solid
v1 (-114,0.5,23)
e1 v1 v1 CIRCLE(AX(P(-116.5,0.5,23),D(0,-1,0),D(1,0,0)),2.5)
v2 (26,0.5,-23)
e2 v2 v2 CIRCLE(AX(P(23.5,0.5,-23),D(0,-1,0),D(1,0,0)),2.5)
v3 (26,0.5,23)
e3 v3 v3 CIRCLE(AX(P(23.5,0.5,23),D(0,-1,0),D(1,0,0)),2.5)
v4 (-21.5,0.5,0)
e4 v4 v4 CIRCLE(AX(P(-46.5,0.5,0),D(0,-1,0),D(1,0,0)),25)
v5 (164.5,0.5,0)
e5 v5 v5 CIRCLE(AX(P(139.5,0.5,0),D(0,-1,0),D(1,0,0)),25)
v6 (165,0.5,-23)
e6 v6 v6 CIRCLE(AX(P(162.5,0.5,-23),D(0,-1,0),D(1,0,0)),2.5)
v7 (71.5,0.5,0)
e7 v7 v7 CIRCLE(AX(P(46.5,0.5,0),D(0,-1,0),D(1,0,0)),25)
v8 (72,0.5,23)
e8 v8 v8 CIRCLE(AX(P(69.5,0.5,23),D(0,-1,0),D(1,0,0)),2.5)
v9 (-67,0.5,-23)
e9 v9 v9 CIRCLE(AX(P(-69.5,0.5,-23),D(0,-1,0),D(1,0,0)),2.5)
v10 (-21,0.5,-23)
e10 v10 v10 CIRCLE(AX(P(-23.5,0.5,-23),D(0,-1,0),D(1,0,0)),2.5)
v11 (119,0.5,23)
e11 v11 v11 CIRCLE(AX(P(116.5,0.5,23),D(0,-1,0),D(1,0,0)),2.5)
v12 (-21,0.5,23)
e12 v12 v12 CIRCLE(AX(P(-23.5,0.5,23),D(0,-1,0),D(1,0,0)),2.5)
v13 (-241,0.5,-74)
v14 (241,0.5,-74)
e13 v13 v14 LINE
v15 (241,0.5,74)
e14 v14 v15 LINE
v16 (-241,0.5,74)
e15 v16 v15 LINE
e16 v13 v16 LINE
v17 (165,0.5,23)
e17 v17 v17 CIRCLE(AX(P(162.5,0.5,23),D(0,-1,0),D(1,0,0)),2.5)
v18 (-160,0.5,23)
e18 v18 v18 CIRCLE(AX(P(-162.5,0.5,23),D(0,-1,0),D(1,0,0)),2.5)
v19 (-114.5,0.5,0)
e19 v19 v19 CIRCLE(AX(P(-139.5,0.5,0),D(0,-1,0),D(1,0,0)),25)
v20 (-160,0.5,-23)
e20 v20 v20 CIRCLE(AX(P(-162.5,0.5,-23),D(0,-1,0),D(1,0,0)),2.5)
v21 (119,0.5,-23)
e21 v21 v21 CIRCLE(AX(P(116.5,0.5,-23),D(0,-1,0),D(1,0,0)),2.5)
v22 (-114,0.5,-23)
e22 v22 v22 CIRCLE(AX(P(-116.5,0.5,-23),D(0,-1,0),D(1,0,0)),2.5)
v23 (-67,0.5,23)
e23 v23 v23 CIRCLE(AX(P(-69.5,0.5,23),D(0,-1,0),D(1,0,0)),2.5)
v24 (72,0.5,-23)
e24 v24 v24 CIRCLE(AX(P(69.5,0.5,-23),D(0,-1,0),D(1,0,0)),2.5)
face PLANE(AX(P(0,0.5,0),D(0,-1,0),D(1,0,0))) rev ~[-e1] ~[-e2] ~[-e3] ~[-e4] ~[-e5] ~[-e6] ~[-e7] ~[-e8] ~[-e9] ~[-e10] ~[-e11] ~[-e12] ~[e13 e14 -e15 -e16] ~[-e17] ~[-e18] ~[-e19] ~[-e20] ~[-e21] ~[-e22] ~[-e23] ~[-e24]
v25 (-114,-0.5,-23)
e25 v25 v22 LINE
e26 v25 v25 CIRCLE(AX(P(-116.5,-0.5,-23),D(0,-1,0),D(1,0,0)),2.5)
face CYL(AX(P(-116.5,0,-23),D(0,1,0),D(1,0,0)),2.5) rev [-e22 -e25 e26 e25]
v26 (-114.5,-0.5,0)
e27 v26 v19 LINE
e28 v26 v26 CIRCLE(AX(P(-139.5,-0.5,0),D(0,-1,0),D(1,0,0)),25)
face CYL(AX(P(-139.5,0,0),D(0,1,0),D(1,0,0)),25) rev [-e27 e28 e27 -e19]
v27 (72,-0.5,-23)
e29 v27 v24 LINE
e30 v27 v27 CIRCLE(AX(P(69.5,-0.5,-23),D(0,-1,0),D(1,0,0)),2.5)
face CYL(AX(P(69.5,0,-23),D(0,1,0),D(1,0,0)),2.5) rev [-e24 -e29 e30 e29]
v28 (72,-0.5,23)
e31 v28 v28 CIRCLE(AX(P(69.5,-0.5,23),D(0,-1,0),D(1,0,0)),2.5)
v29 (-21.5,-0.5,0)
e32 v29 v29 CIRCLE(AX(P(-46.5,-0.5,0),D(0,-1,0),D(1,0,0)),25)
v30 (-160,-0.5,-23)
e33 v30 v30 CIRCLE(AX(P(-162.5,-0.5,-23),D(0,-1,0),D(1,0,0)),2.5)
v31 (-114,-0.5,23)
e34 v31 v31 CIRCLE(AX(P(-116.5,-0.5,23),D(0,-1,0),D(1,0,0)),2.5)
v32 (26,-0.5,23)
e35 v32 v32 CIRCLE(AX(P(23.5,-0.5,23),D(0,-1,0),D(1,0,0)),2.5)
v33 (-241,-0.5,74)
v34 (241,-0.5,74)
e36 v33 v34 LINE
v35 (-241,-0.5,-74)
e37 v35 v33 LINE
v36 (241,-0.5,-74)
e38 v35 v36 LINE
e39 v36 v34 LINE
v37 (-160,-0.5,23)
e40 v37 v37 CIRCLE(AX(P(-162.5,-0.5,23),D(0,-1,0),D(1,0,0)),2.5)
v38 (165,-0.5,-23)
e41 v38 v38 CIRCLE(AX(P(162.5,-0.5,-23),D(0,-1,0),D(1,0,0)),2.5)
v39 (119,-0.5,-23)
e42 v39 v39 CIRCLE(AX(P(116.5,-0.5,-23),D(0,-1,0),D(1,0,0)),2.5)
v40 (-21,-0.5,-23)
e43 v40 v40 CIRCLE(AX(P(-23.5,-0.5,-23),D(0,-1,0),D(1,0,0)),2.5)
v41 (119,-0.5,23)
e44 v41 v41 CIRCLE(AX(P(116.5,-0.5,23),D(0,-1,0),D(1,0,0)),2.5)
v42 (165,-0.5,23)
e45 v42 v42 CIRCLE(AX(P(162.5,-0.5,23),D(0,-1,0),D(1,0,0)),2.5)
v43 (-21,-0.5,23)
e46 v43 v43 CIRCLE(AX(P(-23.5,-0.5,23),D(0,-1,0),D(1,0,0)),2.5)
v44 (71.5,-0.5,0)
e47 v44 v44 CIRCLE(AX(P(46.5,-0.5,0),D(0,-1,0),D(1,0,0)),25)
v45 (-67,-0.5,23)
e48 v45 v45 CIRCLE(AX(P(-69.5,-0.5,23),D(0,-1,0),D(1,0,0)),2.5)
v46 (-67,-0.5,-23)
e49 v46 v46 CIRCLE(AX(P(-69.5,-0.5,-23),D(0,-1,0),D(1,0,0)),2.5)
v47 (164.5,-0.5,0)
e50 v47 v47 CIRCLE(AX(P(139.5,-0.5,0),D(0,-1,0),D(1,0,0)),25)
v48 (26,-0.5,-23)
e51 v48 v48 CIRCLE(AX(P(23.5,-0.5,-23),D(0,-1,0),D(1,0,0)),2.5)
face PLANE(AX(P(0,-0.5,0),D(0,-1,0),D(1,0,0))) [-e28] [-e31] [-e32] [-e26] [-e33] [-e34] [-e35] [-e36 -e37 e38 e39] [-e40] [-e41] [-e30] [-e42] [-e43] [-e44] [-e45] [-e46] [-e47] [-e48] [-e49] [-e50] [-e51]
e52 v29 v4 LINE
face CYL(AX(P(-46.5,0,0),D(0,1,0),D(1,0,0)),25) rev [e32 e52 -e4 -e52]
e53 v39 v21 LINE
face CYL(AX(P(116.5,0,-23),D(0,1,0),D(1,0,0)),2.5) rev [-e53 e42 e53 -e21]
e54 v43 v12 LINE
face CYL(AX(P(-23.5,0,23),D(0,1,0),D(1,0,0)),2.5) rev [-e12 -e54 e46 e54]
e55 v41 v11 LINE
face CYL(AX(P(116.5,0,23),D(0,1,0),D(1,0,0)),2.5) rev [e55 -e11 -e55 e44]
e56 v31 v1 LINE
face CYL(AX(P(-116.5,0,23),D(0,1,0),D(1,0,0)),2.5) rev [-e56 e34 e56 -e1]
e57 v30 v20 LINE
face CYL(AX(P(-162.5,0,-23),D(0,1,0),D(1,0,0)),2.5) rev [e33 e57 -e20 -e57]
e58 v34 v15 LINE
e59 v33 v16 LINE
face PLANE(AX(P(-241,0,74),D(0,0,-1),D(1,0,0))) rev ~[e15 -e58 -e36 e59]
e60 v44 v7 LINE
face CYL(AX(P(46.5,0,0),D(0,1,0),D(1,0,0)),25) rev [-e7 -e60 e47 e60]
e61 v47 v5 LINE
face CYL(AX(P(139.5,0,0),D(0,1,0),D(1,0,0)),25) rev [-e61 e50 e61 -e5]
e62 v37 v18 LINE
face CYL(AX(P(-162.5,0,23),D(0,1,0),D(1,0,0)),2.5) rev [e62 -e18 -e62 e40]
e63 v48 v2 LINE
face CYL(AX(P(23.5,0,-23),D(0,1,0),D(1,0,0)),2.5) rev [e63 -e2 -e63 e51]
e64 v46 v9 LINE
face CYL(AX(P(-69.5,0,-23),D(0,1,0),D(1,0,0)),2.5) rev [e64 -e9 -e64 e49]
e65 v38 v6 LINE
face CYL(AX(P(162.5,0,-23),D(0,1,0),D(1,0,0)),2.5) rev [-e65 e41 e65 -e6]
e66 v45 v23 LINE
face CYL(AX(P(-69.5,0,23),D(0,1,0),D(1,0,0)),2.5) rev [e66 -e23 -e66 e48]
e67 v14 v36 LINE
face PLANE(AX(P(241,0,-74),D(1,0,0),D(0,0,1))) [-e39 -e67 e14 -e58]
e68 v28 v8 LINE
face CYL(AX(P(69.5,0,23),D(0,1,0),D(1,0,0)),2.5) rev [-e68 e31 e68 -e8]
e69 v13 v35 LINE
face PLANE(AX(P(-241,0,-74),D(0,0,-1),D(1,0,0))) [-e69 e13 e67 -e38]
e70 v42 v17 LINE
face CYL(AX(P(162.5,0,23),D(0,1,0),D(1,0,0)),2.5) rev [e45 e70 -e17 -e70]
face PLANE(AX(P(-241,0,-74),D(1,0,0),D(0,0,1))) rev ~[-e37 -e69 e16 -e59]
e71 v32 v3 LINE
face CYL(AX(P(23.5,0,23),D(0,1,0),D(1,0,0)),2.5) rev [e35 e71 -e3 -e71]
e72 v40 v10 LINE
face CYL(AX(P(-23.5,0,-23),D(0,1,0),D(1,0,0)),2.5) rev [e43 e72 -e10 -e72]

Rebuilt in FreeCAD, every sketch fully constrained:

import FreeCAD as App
import Part
import Sketcher


def add_polygon(sketch, points):
    """Adds a closed chain of lines whose ends are joined by coincident constraints."""
    first, n = sketch.GeometryCount, len(points)
    for a, b in zip(points, points[1:] + points[:1]):
        sketch.addGeometry(Part.LineSegment(App.Vector(*a, 0), App.Vector(*b, 0)), False)
    for i in range(n):
        sketch.addConstraint(Sketcher.Constraint("Coincident", first + i, 2, first + (i + 1) % n, 1))

doc = App.newDocument("Part")
params = doc.addObject("Spreadsheet::Sheet", "Params")
for row, (alias, value) in enumerate([
    ("sketch1_diameter", "5 mm"),
    ("sketch1_diameter2", "50 mm"),
    ("sketch1_width", "482 mm"),
    ("sketch1_height", "148 mm"),
    ("pad1_length", "1 mm"),
], start=1):
    params.set(f"A{row}", alias)
    params.set(f"B{row}", "=" + value)
    params.setAlias(f"B{row}", alias)

body = doc.addObject("PartDesign::Body", "Body")

# Sketch on XZ plane
sketch1 = body.newObject("Sketcher::SketchObject", "Sketch")
sketch1.AttachmentSupport = (doc.getObject("XZ_Plane"), [""])
sketch1.MapMode = "FlatFace"
add_polygon(sketch1, [(-241, 74), (-241, -74), (241, -74), (241, 74)])  # lines 0-3
sketch1.addGeometry(Part.Circle(App.Vector(-162.5, -23, 0), App.Vector(0, 0, 1), 2.5), False)  # 4
sketch1.addGeometry(Part.Circle(App.Vector(-116.5, -23, 0), App.Vector(0, 0, 1), 2.5), False)  # 5
sketch1.addGeometry(Part.Circle(App.Vector(-69.5, -23, 0), App.Vector(0, 0, 1), 2.5), False)  # 6
sketch1.addGeometry(Part.Circle(App.Vector(-23.5, -23, 0), App.Vector(0, 0, 1), 2.5), False)  # 7
sketch1.addGeometry(Part.Circle(App.Vector(23.5, -23, 0), App.Vector(0, 0, 1), 2.5), False)  # 8
sketch1.addGeometry(Part.Circle(App.Vector(69.5, -23, 0), App.Vector(0, 0, 1), 2.5), False)  # 9
sketch1.addGeometry(Part.Circle(App.Vector(116.5, -23, 0), App.Vector(0, 0, 1), 2.5), False)  # 10
sketch1.addGeometry(Part.Circle(App.Vector(162.5, -23, 0), App.Vector(0, 0, 1), 2.5), False)  # 11
sketch1.addGeometry(Part.Circle(App.Vector(-139.5, 0, 0), App.Vector(0, 0, 1), 25), False)  # 12
sketch1.addGeometry(Part.Circle(App.Vector(-46.5, 0, 0), App.Vector(0, 0, 1), 25), False)  # 13
sketch1.addGeometry(Part.Circle(App.Vector(-162.5, 23, 0), App.Vector(0, 0, 1), 2.5), False)  # 14
sketch1.addGeometry(Part.Circle(App.Vector(-116.5, 23, 0), App.Vector(0, 0, 1), 2.5), False)  # 15
sketch1.addGeometry(Part.Circle(App.Vector(-69.5, 23, 0), App.Vector(0, 0, 1), 2.5), False)  # 16
sketch1.addGeometry(Part.Circle(App.Vector(-23.5, 23, 0), App.Vector(0, 0, 1), 2.5), False)  # 17
sketch1.addGeometry(Part.Circle(App.Vector(46.5, 0, 0), App.Vector(0, 0, 1), 25), False)  # 18
sketch1.addGeometry(Part.Circle(App.Vector(139.5, 0, 0), App.Vector(0, 0, 1), 25), False)  # 19
sketch1.addGeometry(Part.Circle(App.Vector(23.5, 23, 0), App.Vector(0, 0, 1), 2.5), False)  # 20
sketch1.addGeometry(Part.Circle(App.Vector(69.5, 23, 0), App.Vector(0, 0, 1), 2.5), False)  # 21
sketch1.addGeometry(Part.Circle(App.Vector(116.5, 23, 0), App.Vector(0, 0, 1), 2.5), False)  # 22
sketch1.addGeometry(Part.Circle(App.Vector(162.5, 23, 0), App.Vector(0, 0, 1), 2.5), False)  # 23
sketch1.addConstraint(Sketcher.Constraint("Vertical", 0))
sketch1.addConstraint(Sketcher.Constraint("Horizontal", 1))
sketch1.addConstraint(Sketcher.Constraint("Vertical", 2))
sketch1.addConstraint(Sketcher.Constraint("Horizontal", 3))
sketch1.addConstraint(Sketcher.Constraint("Equal", 4, 5))
sketch1.addConstraint(Sketcher.Constraint("Equal", 5, 6))
sketch1.addConstraint(Sketcher.Constraint("Equal", 6, 7))
sketch1.addConstraint(Sketcher.Constraint("Equal", 7, 8))
sketch1.addConstraint(Sketcher.Constraint("Equal", 8, 9))
sketch1.addConstraint(Sketcher.Constraint("Equal", 9, 10))
sketch1.addConstraint(Sketcher.Constraint("Equal", 10, 11))
sketch1.addConstraint(Sketcher.Constraint("Equal", 12, 13))
sketch1.addConstraint(Sketcher.Constraint("Equal", 11, 14))
sketch1.addConstraint(Sketcher.Constraint("Equal", 14, 15))
sketch1.addConstraint(Sketcher.Constraint("Equal", 15, 16))
sketch1.addConstraint(Sketcher.Constraint("Equal", 16, 17))
sketch1.addConstraint(Sketcher.Constraint("Equal", 13, 18))
sketch1.addConstraint(Sketcher.Constraint("Equal", 18, 19))
sketch1.addConstraint(Sketcher.Constraint("Equal", 17, 20))
sketch1.addConstraint(Sketcher.Constraint("Equal", 20, 21))
sketch1.addConstraint(Sketcher.Constraint("Equal", 21, 22))
sketch1.addConstraint(Sketcher.Constraint("Equal", 22, 23))
sketch1.addConstraint(Sketcher.Constraint("Symmetric", 11, 3, 14, 3, -1, 1))
sketch1.addConstraint(Sketcher.Constraint("Symmetric", 10, 3, 15, 3, -1, 1))
sketch1.addConstraint(Sketcher.Constraint("Symmetric", 9, 3, 16, 3, -1, 1))
sketch1.addConstraint(Sketcher.Constraint("Symmetric", 8, 3, 17, 3, -1, 1))
sketch1.addConstraint(Sketcher.Constraint("Symmetric", 13, 3, 18, 3, -1, 1))
sketch1.addConstraint(Sketcher.Constraint("Symmetric", 12, 3, 19, 3, -1, 1))
sketch1.addConstraint(Sketcher.Constraint("Symmetric", 7, 3, 20, 3, -1, 1))
sketch1.addConstraint(Sketcher.Constraint("Symmetric", 6, 3, 21, 3, -1, 1))
sketch1.addConstraint(Sketcher.Constraint("Symmetric", 5, 3, 22, 3, -1, 1))
sketch1.addConstraint(Sketcher.Constraint("Symmetric", 4, 3, 23, 3, -1, 1))
sketch1.addConstraint(Sketcher.Constraint("Symmetric", 0, 2, 2, 2, -1, 1))
sketch1.addConstraint(Sketcher.Constraint("Symmetric", 7, 3, 8, 3, -2))
sketch1.addConstraint(Sketcher.Constraint("Symmetric", 6, 3, 9, 3, -2))
sketch1.addConstraint(Sketcher.Constraint("Symmetric", 5, 3, 10, 3, -2))
sketch1.addConstraint(Sketcher.Constraint("Symmetric", 4, 3, 11, 3, -2))
sketch1.addConstraint(Sketcher.Constraint("PointOnObject", 12, 3, -1))
sketch1.addConstraint(Sketcher.Constraint("PointOnObject", 13, 3, -1))
sketch1.addConstraint(Sketcher.Constraint("Horizontal", 4, 3, 5, 3))
sketch1.addConstraint(Sketcher.Constraint("Horizontal", 5, 3, 6, 3))
sketch1.addConstraint(Sketcher.Constraint("Horizontal", 6, 3, 7, 3))
sketch1.addConstraint(Sketcher.Constraint("Diameter", 4, 5.0))
sketch1.addConstraint(Sketcher.Constraint("Diameter", 12, 50.0))
sketch1.addConstraint(Sketcher.Constraint("DistanceX", 1, 1, 1, 2, 482.0))
sketch1.addConstraint(Sketcher.Constraint("DistanceY", 0, 2, 0, 1, 148.0))
sketch1.addConstraint(Sketcher.Constraint("DistanceY", 4, 3, -1, 1, 23.0))
sketch1.addConstraint(Sketcher.Constraint("DistanceX", 4, 3, 5, 3, 46.0))
sketch1.addConstraint(Sketcher.Constraint("DistanceX", 5, 3, 6, 3, 47.0))
sketch1.addConstraint(Sketcher.Constraint("DistanceX", 6, 3, 7, 3, 46.0))
sketch1.addConstraint(Sketcher.Constraint("DistanceX", 7, 3, 8, 3, 47.0))
sketch1.addConstraint(Sketcher.Constraint("DistanceX", 4, 3, 12, 3, 23.0))
sketch1.addConstraint(Sketcher.Constraint("DistanceX", 6, 3, 13, 3, 23.0))
sketch1.setExpression("Constraints[46]", "Params.sketch1_diameter")
sketch1.setExpression("Constraints[47]", "Params.sketch1_diameter2")
sketch1.setExpression("Constraints[48]", "Params.sketch1_width")
sketch1.setExpression("Constraints[49]", "Params.sketch1_height")
pad1 = body.newObject("PartDesign::Pad", "Pad")
pad1.Profile = sketch1
pad1.setExpression("Length", "Params.pad1_length")
pad1.Midplane = True

doc.recompute()
